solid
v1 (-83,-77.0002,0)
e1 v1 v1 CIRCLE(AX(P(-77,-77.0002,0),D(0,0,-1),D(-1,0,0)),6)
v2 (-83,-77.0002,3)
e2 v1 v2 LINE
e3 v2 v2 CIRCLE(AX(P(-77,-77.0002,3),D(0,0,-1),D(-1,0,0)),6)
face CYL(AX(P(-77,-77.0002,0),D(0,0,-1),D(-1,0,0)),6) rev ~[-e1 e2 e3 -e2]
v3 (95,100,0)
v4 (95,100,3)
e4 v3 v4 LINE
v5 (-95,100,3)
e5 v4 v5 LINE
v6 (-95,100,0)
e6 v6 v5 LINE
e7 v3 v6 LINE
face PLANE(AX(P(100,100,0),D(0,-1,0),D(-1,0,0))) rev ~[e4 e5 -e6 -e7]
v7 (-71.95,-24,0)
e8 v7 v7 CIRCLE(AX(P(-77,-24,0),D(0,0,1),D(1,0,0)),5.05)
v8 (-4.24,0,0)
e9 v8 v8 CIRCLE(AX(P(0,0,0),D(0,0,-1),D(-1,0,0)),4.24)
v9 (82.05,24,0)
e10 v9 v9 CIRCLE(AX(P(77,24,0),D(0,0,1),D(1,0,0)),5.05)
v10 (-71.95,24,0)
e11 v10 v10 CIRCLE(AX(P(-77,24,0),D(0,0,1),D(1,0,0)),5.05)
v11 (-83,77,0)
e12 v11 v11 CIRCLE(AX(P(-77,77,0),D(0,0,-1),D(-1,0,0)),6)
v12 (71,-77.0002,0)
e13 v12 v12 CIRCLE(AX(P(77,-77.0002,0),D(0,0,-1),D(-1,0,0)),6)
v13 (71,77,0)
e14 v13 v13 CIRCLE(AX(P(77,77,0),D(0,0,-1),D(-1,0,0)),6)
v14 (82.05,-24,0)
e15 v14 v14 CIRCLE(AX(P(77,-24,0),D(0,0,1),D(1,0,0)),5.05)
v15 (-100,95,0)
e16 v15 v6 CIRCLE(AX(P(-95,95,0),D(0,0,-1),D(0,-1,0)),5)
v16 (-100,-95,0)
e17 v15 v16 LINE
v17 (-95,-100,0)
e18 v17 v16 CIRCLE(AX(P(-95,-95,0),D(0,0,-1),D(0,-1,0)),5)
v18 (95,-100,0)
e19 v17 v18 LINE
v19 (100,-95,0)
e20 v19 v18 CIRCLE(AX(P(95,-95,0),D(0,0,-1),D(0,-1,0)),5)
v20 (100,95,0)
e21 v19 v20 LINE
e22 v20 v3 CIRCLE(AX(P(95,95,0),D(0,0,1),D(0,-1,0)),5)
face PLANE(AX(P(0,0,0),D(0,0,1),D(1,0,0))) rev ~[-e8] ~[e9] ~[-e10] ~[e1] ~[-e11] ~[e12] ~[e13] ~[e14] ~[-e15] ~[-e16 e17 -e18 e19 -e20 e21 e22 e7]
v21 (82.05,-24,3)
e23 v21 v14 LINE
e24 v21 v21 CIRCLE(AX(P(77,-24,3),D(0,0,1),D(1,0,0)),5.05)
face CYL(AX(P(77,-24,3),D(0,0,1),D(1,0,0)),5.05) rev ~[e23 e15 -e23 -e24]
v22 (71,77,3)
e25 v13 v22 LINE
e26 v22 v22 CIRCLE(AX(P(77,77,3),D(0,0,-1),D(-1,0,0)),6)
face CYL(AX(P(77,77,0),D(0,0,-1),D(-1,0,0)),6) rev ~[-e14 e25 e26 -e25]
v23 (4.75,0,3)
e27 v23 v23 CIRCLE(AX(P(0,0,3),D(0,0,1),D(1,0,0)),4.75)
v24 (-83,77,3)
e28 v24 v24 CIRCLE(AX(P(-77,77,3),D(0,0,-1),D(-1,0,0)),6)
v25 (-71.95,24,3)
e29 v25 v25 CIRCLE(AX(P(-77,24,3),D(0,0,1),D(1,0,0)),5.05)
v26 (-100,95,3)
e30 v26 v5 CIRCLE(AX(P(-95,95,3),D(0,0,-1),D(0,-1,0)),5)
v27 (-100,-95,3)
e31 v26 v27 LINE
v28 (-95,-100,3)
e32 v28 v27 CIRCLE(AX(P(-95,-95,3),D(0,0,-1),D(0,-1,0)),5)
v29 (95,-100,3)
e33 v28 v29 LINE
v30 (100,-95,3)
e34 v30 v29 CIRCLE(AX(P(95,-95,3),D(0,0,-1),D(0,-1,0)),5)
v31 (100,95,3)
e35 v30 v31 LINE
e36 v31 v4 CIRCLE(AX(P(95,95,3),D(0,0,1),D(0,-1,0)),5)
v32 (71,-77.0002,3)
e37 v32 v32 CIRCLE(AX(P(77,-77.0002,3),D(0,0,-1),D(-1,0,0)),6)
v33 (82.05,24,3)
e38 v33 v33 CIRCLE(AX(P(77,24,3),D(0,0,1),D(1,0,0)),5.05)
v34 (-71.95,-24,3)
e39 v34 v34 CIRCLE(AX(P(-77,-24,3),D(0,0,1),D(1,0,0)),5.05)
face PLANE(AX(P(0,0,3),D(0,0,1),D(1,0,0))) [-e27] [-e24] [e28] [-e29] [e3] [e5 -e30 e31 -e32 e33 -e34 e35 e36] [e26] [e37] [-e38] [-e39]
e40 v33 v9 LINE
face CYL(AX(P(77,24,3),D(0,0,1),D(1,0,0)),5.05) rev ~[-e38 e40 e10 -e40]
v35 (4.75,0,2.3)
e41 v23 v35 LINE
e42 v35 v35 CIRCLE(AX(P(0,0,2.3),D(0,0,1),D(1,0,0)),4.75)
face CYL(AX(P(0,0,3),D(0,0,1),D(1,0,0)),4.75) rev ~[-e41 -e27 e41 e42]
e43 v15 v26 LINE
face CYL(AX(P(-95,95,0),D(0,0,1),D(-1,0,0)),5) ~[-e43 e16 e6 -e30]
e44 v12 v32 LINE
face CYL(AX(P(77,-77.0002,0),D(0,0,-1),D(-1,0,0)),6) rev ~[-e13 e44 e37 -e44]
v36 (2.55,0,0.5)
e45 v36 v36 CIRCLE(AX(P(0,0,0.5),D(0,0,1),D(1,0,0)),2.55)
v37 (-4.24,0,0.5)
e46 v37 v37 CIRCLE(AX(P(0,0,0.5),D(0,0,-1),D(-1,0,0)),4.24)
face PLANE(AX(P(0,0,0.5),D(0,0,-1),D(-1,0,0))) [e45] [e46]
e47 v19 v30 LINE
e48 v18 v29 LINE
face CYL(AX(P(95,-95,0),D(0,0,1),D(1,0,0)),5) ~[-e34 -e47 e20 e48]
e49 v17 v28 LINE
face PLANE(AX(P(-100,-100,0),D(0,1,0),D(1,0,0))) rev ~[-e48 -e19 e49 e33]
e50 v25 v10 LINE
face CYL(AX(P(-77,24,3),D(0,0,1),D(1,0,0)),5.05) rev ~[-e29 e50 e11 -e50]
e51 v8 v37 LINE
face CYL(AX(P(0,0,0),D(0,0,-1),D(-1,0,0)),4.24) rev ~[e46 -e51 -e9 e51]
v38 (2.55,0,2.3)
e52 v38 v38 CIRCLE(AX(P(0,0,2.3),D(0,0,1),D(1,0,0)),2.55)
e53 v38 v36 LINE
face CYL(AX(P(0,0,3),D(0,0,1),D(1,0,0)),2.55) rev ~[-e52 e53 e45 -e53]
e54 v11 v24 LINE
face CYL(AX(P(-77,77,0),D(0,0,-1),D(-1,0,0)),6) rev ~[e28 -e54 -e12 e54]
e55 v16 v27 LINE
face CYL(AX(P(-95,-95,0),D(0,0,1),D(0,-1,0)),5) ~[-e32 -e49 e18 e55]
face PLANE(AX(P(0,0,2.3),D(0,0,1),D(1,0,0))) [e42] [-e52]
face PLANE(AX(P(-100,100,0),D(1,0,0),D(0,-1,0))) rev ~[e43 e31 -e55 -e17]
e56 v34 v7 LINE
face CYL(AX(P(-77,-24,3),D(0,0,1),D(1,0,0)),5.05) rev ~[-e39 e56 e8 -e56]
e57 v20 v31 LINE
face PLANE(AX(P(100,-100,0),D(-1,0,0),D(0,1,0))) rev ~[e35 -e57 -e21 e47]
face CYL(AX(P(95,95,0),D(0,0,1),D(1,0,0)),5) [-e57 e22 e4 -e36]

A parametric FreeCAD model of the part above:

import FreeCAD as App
import Part
import Sketcher

V = App.Vector
Q = App.Units.Quantity


def edges_at(feature, points):
    """Names of the edges that pass closest to the given points."""
    edges = feature.Shape.Edges
    near = lambda p: min(range(len(edges)), key=lambda i: edges[i].distToShape(Part.Vertex(*p))[0])
    return sorted({f"Edge{near(p) + 1}" for p in points})

doc = App.newDocument("Part")
body = doc.addObject("PartDesign::Body", "Body")

sketch1 = body.newObject("Sketcher::SketchObject", "Sketch")
sketch1.AttachmentSupport = (doc.getObject("XY_Plane"), [""])
sketch1.MapMode = "FlatFace"
sketch1.addGeometry([
    Part.LineSegment(V(100, -100, 0), V(100, 100, 0)),
    Part.LineSegment(V(100, 100, 0), V(-100, 100, 0)),
    Part.LineSegment(V(-100, 100, 0), V(-100, -100, 0)),
    Part.LineSegment(V(-100, -100, 0), V(100, -100, 0)),
], False)
sketch1.addConstraint([
    Sketcher.Constraint("Coincident", 0, 2, 1, 1),
    Sketcher.Constraint("Coincident", 1, 2, 2, 1),
    Sketcher.Constraint("Coincident", 2, 2, 3, 1),
    Sketcher.Constraint("Coincident", 3, 2, 0, 1),
    Sketcher.Constraint("Vertical", 0),
    Sketcher.Constraint("Horizontal", 1),
    Sketcher.Constraint("Vertical", 2),
    Sketcher.Constraint("Horizontal", 3),
    Sketcher.Constraint("Symmetric", 0, 2, 2, 2, -1, 1),
    Sketcher.Constraint("Equal", 3, 0),
    Sketcher.Constraint("DistanceX", 1, 2, 1, 1, Q("200 mm")),
])
pad1 = body.newObject("PartDesign::Pad", "Pad")
pad1.Profile = sketch1
pad1.Length = 3
doc.recompute()

fillet = body.newObject("PartDesign::Fillet", "Fillet")
fillet.Base = (pad1, edges_at(pad1, [
    (100, 100, 1.5),
    (-100, 100, 1.5),
    (100, -100, 1.5),
    (-100, -100, 1.5),
]))
fillet.Radius = 5

sketch2 = body.newObject("Sketcher::SketchObject", "Sketch001")
sketch2.AttachmentSupport = (doc.getObject("XY_Plane"), [""])
sketch2.MapMode = "FlatFace"
sketch2.AttachmentOffset = App.Placement(V(0, 0, 3), App.Rotation())
sketch2.addGeometry(Part.Circle(V(0, 0, 0), V(0, 0, 1), 2.5), False)
sketch2.addConstraint([
    Sketcher.Constraint("Coincident", 0, 3, -1, 1),
    Sketcher.Constraint("Diameter", 0, Q("5.1 mm")),
])
pocket1 = body.newObject("PartDesign::Pocket", "Pocket")
pocket1.Profile = sketch2
pocket1.Length = 10

sketch3 = body.newObject("Sketcher::SketchObject", "Sketch002")
sketch3.AttachmentSupport = (doc.getObject("XY_Plane"), [""])
sketch3.MapMode = "FlatFace"
sketch3.AttachmentOffset = App.Placement(V(0, 0, 3), App.Rotation())
sketch3.addGeometry(Part.Circle(V(0, 0, 0), V(0, 0, 1), 4.8), False)
sketch3.addConstraint([
    Sketcher.Constraint("Coincident", 0, 3, -1, 1),
    Sketcher.Constraint("Diameter", 0, Q("9.5 mm")),
])
pocket2 = body.newObject("PartDesign::Pocket", "Pocket001")
pocket2.Profile = sketch3
pocket2.Length = 0.7

sketch4 = body.newObject("Sketcher::SketchObject", "Sketch003")
sketch4.AttachmentSupport = (doc.getObject("XY_Plane"), [""])
sketch4.MapMode = "FlatFace"
sketch4.addGeometry([
    Part.Circle(V(77, 77, 0), V(0, 0, 1), 6),
    Part.Circle(V(77, -77, 0), V(0, 0, 1), 6),
    Part.Circle(V(-77, 77, 0), V(0, 0, 1), 6),
    Part.Circle(V(-77, -77, 0), V(0, 0, 1), 6),
], False)
sketch4.addConstraint([
    Sketcher.Constraint("Equal", 0, 1),
    Sketcher.Constraint("Equal", 1, 2),
    Sketcher.Constraint("Equal", 2, 3),
    Sketcher.Constraint("Symmetric", 1, 3, 2, 3, -1, 1),
    Sketcher.Constraint("Symmetric", 0, 3, 3, 3, -1, 1),
    Sketcher.Constraint("Symmetric", 0, 3, 2, 3, -2),
    Sketcher.Constraint("Diameter", 0, Q("12 mm")),
    Sketcher.Constraint("DistanceX", -1, 1, 0, 3, Q("77 mm")),
    Sketcher.Constraint("DistanceY", -1, 1, 0, 3, Q("77 mm")),
])
pocket3 = body.newObject("PartDesign::Pocket", "Pocket002")
pocket3.Profile = sketch4
pocket3.Length = 10
pocket3.Reversed = True

sketch5 = body.newObject("Sketcher::SketchObject", "Sketch004")
sketch5.AttachmentSupport = (doc.getObject("XY_Plane"), [""])
sketch5.MapMode = "FlatFace"
sketch5.addGeometry(Part.Circle(V(0, 0, 0), V(0, 0, 1), 4.2), False)
sketch5.addConstraint([
    Sketcher.Constraint("Coincident", 0, 3, -1, 1),
    Sketcher.Constraint("Diameter", 0, Q("8.48 mm")),
])
pocket4 = body.newObject("PartDesign::Pocket", "Pocket003")
pocket4.Profile = sketch5
pocket4.Length = 0.5
pocket4.Reversed = True

sketch6 = body.newObject("Sketcher::SketchObject", "Sketch005")
sketch6.AttachmentSupport = (doc.getObject("XY_Plane"), [""])
sketch6.MapMode = "FlatFace"
sketch6.AttachmentOffset = App.Placement(V(0, 0, 3), App.Rotation())
sketch6.addGeometry([
    Part.Circle(V(-77, 24, 0), V(0, 0, 1), 5),
    Part.Circle(V(77, 24, 0), V(0, 0, 1), 5),
    Part.Circle(V(-77, -24, 0), V(0, 0, 1), 5),
    Part.Circle(V(77, -24, 0), V(0, 0, 1), 5),
], False)
sketch6.addConstraint([
    Sketcher.Constraint("Equal", 0, 1),
    Sketcher.Constraint("Equal", 1, 2),
    Sketcher.Constraint("Equal", 2, 3),
    Sketcher.Constraint("Symmetric", 1, 3, 2, 3, -1, 1),
    Sketcher.Constraint("Symmetric", 0, 3, 3, 3, -1, 1),
    Sketcher.Constraint("Symmetric", 0, 3, 1, 3, -2),
    Sketcher.Constraint("Diameter", 0, Q("10.1 mm")),
    Sketcher.Constraint("DistanceX", 0, 3, -1, 1, Q("77 mm")),
    Sketcher.Constraint("DistanceY", -1, 1, 0, 3, Q("24 mm")),
])
pocket5 = body.newObject("PartDesign::Pocket", "Pocket004")
pocket5.Profile = sketch6
pocket5.Length = 10

doc.recompute()
